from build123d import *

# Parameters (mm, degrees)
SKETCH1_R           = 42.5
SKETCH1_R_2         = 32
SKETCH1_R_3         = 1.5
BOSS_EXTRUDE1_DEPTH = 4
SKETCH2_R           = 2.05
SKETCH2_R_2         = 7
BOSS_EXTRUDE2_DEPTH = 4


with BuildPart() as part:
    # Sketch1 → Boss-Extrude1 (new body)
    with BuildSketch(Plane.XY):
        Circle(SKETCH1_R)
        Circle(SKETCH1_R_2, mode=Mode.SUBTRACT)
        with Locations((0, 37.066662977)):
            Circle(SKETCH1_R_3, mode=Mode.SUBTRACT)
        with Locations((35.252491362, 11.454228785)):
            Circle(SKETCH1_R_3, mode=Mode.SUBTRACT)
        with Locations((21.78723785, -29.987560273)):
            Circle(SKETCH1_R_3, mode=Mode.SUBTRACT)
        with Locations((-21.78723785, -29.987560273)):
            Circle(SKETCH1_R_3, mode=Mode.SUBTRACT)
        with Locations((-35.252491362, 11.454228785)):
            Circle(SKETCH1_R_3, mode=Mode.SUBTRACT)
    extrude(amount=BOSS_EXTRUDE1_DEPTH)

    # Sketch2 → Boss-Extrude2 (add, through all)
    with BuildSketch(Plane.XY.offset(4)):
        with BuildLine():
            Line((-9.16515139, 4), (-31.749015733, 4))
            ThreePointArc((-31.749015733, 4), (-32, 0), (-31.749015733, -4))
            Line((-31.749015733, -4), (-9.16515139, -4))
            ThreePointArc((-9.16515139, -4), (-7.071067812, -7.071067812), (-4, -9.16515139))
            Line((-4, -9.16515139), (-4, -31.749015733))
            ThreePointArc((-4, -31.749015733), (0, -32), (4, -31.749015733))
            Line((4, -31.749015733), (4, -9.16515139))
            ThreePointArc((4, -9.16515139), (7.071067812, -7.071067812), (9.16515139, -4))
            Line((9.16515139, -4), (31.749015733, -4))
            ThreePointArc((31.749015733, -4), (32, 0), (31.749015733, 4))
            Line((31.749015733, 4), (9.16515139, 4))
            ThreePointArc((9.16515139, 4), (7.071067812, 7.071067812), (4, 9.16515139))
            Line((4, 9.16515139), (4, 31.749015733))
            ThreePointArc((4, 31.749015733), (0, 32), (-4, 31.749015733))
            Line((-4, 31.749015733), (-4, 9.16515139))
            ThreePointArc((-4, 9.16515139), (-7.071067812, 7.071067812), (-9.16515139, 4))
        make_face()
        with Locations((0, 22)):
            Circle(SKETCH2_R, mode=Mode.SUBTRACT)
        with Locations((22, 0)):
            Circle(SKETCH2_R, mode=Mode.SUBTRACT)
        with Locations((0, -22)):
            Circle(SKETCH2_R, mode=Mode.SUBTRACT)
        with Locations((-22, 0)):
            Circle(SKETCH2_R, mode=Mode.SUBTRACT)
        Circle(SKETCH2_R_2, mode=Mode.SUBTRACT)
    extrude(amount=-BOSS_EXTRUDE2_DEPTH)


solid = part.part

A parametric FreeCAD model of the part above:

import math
import FreeCAD as App
import Part
import Sketcher

V = App.Vector
Q = App.Units.Quantity

doc = App.newDocument("Part")
params = doc.addObject("Spreadsheet::Sheet", "Params")
for row, (alias, value) in enumerate([
    ("sketch1_diameter", "85 mm"),
    ("sketch1_diameter2", "3 mm"),
    ("sketch1_diameter3", "64 mm"),
    ("pad1_length", "4 mm"),
    ("sketch2_diameter", "14 mm"),
    ("sketch2_radius", "32 mm"),
    ("sketch2_radius2", "10 mm"),
    ("sketch2_diameter2", "4.1 mm"),
    ("pad2_length", "4 mm"),
], start=1):
    params.set(f"A{row}", alias)
    params.set(f"B{row}", "=" + value)
    params.setAlias(f"B{row}", alias)

body = doc.addObject("PartDesign::Body", "Body")

sketch1 = body.newObject("Sketcher::SketchObject", "Sketch")
sketch1.AttachmentSupport = (doc.getObject("XY_Plane"), [""])
sketch1.MapMode = "FlatFace"
sketch1.addGeometry(Part.Circle(V(0, 0, 0), V(0, 0, 1), 42.5), False)
sketch1.addGeometry(Part.Circle(V(-21.8, -30, 0), V(0, 0, 1), 1.5), False)
sketch1.addGeometry(Part.Circle(V(21.8, -30, 0), V(0, 0, 1), 1.5), False)
sketch1.addGeometry(Part.Circle(V(0, 0, 0), V(0, 0, 1), 32), False)
sketch1.addGeometry(Part.Circle(V(-35.3, 11.5, 0), V(0, 0, 1), 1.5), False)
sketch1.addGeometry(Part.Circle(V(35.3, 11.5, 0), V(0, 0, 1), 1.5), False)
sketch1.addGeometry(Part.Circle(V(0, 37.1, 0), V(0, 0, 1), 1.5), False)
sketch1.addConstraint(Sketcher.Constraint("Coincident", 0, 3, -1, 1))
sketch1.addConstraint(Sketcher.Constraint("Coincident", 3, 3, -1, 1))
sketch1.addConstraint(Sketcher.Constraint("Equal", 1, 2))
sketch1.addConstraint(Sketcher.Constraint("Equal", 2, 4))
sketch1.addConstraint(Sketcher.Constraint("Equal", 4, 5))
sketch1.addConstraint(Sketcher.Constraint("Equal", 5, 6))
sketch1.addConstraint(Sketcher.Constraint("Symmetric", 1, 3, 2, 3, -2))
sketch1.addConstraint(Sketcher.Constraint("Symmetric", 4, 3, 5, 3, -2))
sketch1.addConstraint(Sketcher.Constraint("PointOnObject", 6, 3, -2))
sketch1.addConstraint(Sketcher.Constraint("Diameter", 0, Q("85 mm")))
sketch1.addConstraint(Sketcher.Constraint("Diameter", 1, Q("3 mm")))
sketch1.addConstraint(Sketcher.Constraint("Diameter", 3, Q("64 mm")))
sketch1.addConstraint(Sketcher.Constraint("DistanceY", 1, 3, -1, 1, Q("29.98756 mm")))
sketch1.addConstraint(Sketcher.Constraint("DistanceX", 4, 3, -1, 1, Q("35.252491 mm")))
sketch1.addConstraint(Sketcher.Constraint("DistanceY", -1, 1, 4, 3, Q("11.454229 mm")))
sketch1.addConstraint(Sketcher.Constraint("DistanceX", 4, 3, 2, 3, Q("57.039729 mm")))
sketch1.addConstraint(Sketcher.Constraint("DistanceY", -1, 1, 6, 3, Q("37.066663 mm")))
sketch1.setExpression("Constraints[9]", "Params.sketch1_diameter")
sketch1.setExpression("Constraints[10]", "Params.sketch1_diameter2")
sketch1.setExpression("Constraints[11]", "Params.sketch1_diameter3")
pad1 = body.newObject("PartDesign::Pad", "Pad")
pad1.Profile = sketch1
pad1.setExpression("Length", "Params.pad1_length")

sketch2 = body.newObject("Sketcher::SketchObject", "Sketch001")
sketch2.AttachmentSupport = (doc.getObject("XY_Plane"), [""])
sketch2.MapMode = "FlatFace"
sketch2.AttachmentOffset = App.Placement(V(0, 0, 4), App.Rotation())
sketch2.addGeometry(Part.LineSegment(V(-9.2, 4, 0), V(-31.7, 4, 0)), False)
sketch2.addGeometry(Part.ArcOfCircle(Part.Circle(V(0, 0, 0), V(0, 0, 1), 32), math.radians(172.82), math.radians(187.18)), False)
sketch2.addGeometry(Part.LineSegment(V(-31.7, -4, 0), V(-9.2, -4, 0)), False)
sketch2.addGeometry(Part.ArcOfCircle(Part.Circle(V(0, 0, 0), V(0, 0, 1), 10), math.radians(-156), math.radians(-114)), False)
sketch2.addGeometry(Part.LineSegment(V(-4, -9.2, 0), V(-4, -31.7, 0)), False)
sketch2.addGeometry(Part.ArcOfCircle(Part.Circle(V(0, 0, 0), V(0, 0, 1), 32), math.radians(-97.18), math.radians(-82.82)), False)
sketch2.addGeometry(Part.LineSegment(V(4, -31.7, 0), V(4, -9.2, 0)), False)
sketch2.addGeometry(Part.ArcOfCircle(Part.Circle(V(0, 0, 0), V(0, 0, 1), 10), math.radians(-66), math.radians(-24)), False)
sketch2.addGeometry(Part.LineSegment(V(9.2, -4, 0), V(31.7, -4, 0)), False)
sketch2.addGeometry(Part.ArcOfCircle(Part.Circle(V(0, 0, 0), V(0, 0, 1), 32), math.radians(-7.18), math.radians(7.18)), False)
sketch2.addGeometry(Part.LineSegment(V(31.7, 4, 0), V(9.2, 4, 0)), False)
sketch2.addGeometry(Part.ArcOfCircle(Part.Circle(V(0, 0, 0), V(0, 0, 1), 10), math.radians(24), math.radians(66)), False)
sketch2.addGeometry(Part.LineSegment(V(4, 9.2, 0), V(4, 31.7, 0)), False)
sketch2.addGeometry(Part.ArcOfCircle(Part.Circle(V(0, 0, 0), V(0, 0, 1), 32), math.radians(82.82), math.radians(97.18)), False)
sketch2.addGeometry(Part.LineSegment(V(-4, 31.7, 0), V(-4, 9.2, 0)), False)
sketch2.addGeometry(Part.ArcOfCircle(Part.Circle(V(0, 0, 0), V(0, 0, 1), 10), math.radians(114), math.radians(156)), False)
sketch2.addGeometry(Part.Circle(V(0, -22, 0), V(0, 0, 1), 2), False)
sketch2.addGeometry(Part.Circle(V(-22, 0, 0), V(0, 0, 1), 2), False)
sketch2.addGeometry(Part.Circle(V(0, 0, 0), V(0, 0, 1), 7), False)
sketch2.addGeometry(Part.Circle(V(22, 0, 0), V(0, 0, 1), 2), False)
sketch2.addGeometry(Part.Circle(V(0, 22, 0), V(0, 0, 1), 2), False)
sketch2.addConstraint(Sketcher.Constraint("Coincident", 0, 2, 1, 1))
sketch2.addConstraint(Sketcher.Constraint("Coincident", 1, 2, 2, 1))
sketch2.addConstraint(Sketcher.Constraint("Coincident", 2, 2, 3, 1))
sketch2.addConstraint(Sketcher.Constraint("Coincident", 3, 2, 4, 1))
sketch2.addConstraint(Sketcher.Constraint("Coincident", 4, 2, 5, 1))
sketch2.addConstraint(Sketcher.Constraint("Coincident", 5, 2, 6, 1))
sketch2.addConstraint(Sketcher.Constraint("Coincident", 6, 2, 7, 1))
sketch2.addConstraint(Sketcher.Constraint("Coincident", 7, 2, 8, 1))
sketch2.addConstraint(Sketcher.Constraint("Coincident", 8, 2, 9, 1))
sketch2.addConstraint(Sketcher.Constraint("Coincident", 9, 2, 10, 1))
sketch2.addConstraint(Sketcher.Constraint("Coincident", 10, 2, 11, 1))
sketch2.addConstraint(Sketcher.Constraint("Coincident", 11, 2, 12, 1))
sketch2.addConstraint(Sketcher.Constraint("Coincident", 12, 2, 13, 1))
sketch2.addConstraint(Sketcher.Constraint("Coincident", 13, 2, 14, 1))
sketch2.addConstraint(Sketcher.Constraint("Coincident", 14, 2, 15, 1))
sketch2.addConstraint(Sketcher.Constraint("Coincident", 15, 2, 0, 1))
sketch2.addConstraint(Sketcher.Constraint("Horizontal", 0))
sketch2.addConstraint(Sketcher.Constraint("Horizontal", 2))
sketch2.addConstraint(Sketcher.Constraint("Vertical", 4))
sketch2.addConstraint(Sketcher.Constraint("Vertical", 6))
sketch2.addConstraint(Sketcher.Constraint("Horizontal", 8))
sketch2.addConstraint(Sketcher.Constraint("Horizontal", 10))
sketch2.addConstraint(Sketcher.Constraint("Vertical", 12))
sketch2.addConstraint(Sketcher.Constraint("Vertical", 14))
sketch2.addConstraint(Sketcher.Constraint("Coincident", 1, 3, -1, 1))
sketch2.addConstraint(Sketcher.Constraint("Coincident", 3, 3, -1, 1))
sketch2.addConstraint(Sketcher.Constraint("Coincident", 5, 3, -1, 1))
sketch2.addConstraint(Sketcher.Constraint("Coincident", 7, 3, -1, 1))
sketch2.addConstraint(Sketcher.Constraint("Coincident", 9, 3, -1, 1))
sketch2.addConstraint(Sketcher.Constraint("Coincident", 11, 3, -1, 1))
sketch2.addConstraint(Sketcher.Constraint("Coincident", 13, 3, -1, 1))
sketch2.addConstraint(Sketcher.Constraint("Coincident", 15, 3, -1, 1))
sketch2.addConstraint(Sketcher.Constraint("Coincident", 18, 3, -1, 1))
sketch2.addConstraint(Sketcher.Constraint("Equal", 1, 5))
sketch2.addConstraint(Sketcher.Constraint("Equal", 3, 7))
sketch2.addConstraint(Sketcher.Constraint("Equal", 5, 9))
sketch2.addConstraint(Sketcher.Constraint("Equal", 7, 11))
sketch2.addConstraint(Sketcher.Constraint("Equal", 9, 13))
sketch2.addConstraint(Sketcher.Constraint("Equal", 11, 15))
sketch2.addConstraint(Sketcher.Constraint("Equal", 16, 17))
sketch2.addConstraint(Sketcher.Constraint("Equal", 17, 19))
sketch2.addConstraint(Sketcher.Constraint("Equal", 19, 20))
sketch2.addConstraint(Sketcher.Constraint("Symmetric", 17, 3, 19, 3, -1, 1))
sketch2.addConstraint(Sketcher.Constraint("Symmetric", 16, 3, 20, 3, -1, 1))
sketch2.addConstraint(Sketcher.Constraint("PointOnObject", 16, 3, -2))
sketch2.addConstraint(Sketcher.Constraint("PointOnObject", 17, 3, -1))
sketch2.addConstraint(Sketcher.Constraint("Horizontal", 4, 2, 5, 2))
sketch2.addConstraint(Sketcher.Constraint("Horizontal", 2, 2, 7, 2))
sketch2.addConstraint(Sketcher.Constraint("Horizontal", 0, 2, 9, 2))
sketch2.addConstraint(Sketcher.Constraint("Horizontal", 12, 2, 13, 2))
sketch2.addConstraint(Sketcher.Constraint("Vertical", 0, 2, 1, 2))
sketch2.addConstraint(Sketcher.Constraint("Vertical", 6, 2, 11, 2))
sketch2.addConstraint(Sketcher.Constraint("Equal", 10, 4))
sketch2.addConstraint(Sketcher.Constraint("Diameter", 18, Q("14 mm")))
sketch2.addConstraint(Sketcher.Constraint("Radius", 1, Q("32 mm")))
sketch2.addConstraint(Sketcher.Constraint("Radius", 3, Q("10 mm")))
sketch2.addConstraint(Sketcher.Constraint("Diameter", 16, Q("4.1 mm")))
sketch2.addConstraint(Sketcher.Constraint("DistanceY", 16, 3, -1, 1, Q("22 mm")))
sketch2.addConstraint(Sketcher.Constraint("DistanceX", 17, 3, -1, 1, Q("22 mm")))
sketch2.addConstraint(Sketcher.Constraint("DistanceY", -1, 1, 0, 2, Q("4 mm")))
sketch2.setExpression("Constraints[53]", "Params.sketch2_diameter")
sketch2.setExpression("Constraints[54]", "Params.sketch2_radius")
sketch2.setExpression("Constraints[55]", "Params.sketch2_radius2")
sketch2.setExpression("Constraints[56]", "Params.sketch2_diameter2")
pad2 = body.newObject("PartDesign::Pad", "Pad001")
pad2.Profile = sketch2
pad2.setExpression("Length", "Params.pad2_length")
pad2.Reversed = True

doc.recompute()
